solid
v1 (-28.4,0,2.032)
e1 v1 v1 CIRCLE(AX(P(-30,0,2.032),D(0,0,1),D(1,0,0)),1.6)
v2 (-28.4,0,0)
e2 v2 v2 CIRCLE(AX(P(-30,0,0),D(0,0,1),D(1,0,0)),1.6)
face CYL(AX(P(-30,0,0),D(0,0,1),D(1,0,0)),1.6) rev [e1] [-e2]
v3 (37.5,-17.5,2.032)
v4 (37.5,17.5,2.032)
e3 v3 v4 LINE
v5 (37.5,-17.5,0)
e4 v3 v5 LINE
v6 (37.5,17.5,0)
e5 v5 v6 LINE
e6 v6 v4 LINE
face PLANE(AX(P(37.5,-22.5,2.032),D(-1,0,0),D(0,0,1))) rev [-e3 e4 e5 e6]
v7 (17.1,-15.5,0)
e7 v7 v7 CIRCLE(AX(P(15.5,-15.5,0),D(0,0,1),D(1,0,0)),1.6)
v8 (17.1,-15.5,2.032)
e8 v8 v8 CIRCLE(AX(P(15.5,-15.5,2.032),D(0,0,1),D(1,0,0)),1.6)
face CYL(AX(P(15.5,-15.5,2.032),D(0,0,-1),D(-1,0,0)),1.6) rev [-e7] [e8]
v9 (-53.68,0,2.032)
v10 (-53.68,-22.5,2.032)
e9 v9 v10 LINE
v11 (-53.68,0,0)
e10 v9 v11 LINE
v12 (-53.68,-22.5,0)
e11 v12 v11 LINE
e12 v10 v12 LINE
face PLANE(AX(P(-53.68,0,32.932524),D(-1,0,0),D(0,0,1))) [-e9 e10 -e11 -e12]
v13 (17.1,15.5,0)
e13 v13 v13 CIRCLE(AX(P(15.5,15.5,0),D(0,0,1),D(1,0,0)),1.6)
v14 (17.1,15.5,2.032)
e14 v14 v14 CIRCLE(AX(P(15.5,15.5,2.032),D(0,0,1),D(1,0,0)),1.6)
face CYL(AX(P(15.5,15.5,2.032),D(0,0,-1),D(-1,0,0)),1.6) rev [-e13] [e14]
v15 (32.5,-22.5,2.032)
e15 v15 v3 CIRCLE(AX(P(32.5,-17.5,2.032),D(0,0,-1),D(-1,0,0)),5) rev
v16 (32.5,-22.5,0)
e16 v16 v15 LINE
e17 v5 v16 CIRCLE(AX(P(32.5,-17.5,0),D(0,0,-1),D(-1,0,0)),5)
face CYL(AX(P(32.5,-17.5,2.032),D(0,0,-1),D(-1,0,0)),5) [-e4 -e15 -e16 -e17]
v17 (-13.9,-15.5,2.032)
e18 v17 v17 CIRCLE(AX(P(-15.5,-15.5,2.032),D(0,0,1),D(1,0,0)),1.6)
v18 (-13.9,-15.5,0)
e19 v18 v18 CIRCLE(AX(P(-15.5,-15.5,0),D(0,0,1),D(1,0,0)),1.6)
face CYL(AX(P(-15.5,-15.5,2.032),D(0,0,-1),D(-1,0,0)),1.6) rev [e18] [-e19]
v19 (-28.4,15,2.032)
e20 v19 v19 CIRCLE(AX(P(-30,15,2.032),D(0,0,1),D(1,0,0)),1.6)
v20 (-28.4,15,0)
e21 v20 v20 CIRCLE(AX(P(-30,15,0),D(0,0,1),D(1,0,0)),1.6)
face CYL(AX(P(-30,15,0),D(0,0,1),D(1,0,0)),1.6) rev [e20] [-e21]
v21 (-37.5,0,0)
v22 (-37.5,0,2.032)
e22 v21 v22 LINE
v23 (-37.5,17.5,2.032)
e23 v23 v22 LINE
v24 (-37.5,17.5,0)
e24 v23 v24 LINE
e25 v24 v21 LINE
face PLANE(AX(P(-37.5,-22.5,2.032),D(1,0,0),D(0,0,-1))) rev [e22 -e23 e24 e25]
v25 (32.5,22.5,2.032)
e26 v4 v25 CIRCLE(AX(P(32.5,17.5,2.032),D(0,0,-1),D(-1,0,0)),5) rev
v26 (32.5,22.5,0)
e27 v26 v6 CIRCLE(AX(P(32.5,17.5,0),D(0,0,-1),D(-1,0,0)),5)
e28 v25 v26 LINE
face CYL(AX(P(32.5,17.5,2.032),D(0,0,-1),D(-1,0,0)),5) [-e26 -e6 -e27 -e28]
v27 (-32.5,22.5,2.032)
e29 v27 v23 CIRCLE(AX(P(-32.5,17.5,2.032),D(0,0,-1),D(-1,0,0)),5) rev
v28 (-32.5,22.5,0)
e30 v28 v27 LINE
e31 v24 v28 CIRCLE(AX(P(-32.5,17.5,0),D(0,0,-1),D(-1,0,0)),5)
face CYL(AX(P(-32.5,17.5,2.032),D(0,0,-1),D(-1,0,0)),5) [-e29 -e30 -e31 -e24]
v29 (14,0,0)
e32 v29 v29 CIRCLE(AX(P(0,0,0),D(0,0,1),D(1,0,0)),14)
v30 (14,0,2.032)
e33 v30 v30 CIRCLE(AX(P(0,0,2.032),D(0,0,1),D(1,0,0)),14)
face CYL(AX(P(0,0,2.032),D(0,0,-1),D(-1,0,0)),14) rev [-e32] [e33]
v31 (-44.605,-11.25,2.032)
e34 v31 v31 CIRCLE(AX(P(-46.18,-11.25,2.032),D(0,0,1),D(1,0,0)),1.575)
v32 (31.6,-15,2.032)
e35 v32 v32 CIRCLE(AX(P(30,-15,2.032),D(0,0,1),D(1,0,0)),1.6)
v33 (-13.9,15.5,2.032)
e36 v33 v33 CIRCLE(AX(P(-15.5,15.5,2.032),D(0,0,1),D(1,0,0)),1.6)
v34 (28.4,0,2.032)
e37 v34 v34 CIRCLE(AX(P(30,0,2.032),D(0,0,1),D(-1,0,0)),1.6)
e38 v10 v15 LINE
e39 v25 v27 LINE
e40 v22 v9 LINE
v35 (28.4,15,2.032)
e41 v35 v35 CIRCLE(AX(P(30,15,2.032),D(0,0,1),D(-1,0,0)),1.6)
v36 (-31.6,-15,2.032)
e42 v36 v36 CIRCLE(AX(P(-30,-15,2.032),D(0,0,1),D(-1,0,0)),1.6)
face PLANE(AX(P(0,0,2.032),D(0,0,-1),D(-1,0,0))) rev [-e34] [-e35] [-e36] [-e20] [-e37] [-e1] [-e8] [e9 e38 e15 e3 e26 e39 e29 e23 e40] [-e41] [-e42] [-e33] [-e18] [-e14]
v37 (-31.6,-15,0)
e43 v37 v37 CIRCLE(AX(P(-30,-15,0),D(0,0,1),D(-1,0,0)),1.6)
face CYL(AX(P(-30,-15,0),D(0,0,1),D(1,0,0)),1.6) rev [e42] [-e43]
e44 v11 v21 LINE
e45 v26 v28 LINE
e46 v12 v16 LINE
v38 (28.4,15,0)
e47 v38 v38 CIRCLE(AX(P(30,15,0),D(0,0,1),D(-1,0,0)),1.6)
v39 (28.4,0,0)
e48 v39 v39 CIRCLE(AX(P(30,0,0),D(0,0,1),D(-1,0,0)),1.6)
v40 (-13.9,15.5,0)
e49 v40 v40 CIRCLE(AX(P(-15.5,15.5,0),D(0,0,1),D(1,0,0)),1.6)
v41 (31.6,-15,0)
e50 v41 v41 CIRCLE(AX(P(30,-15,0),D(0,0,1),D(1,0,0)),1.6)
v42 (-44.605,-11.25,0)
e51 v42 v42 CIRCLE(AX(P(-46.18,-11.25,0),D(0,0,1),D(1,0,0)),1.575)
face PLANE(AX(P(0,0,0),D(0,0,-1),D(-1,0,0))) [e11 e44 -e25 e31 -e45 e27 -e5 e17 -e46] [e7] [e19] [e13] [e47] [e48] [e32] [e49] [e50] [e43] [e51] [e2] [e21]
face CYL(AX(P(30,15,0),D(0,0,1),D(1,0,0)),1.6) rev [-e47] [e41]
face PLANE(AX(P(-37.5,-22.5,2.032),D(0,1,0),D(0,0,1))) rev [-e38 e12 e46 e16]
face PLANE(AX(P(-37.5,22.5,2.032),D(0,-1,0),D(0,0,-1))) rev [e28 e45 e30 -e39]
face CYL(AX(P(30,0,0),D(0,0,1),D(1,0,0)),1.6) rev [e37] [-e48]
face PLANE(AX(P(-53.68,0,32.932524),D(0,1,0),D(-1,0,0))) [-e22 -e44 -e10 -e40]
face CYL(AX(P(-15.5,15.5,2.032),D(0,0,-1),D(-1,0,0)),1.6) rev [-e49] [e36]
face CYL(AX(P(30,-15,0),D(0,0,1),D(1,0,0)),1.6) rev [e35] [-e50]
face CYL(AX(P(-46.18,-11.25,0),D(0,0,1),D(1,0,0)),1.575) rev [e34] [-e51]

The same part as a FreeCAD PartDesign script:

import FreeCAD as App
import Part
import Sketcher


def edges_at(feature, points):
    """Names of the edges that pass closest to the given points."""
    edges = feature.Shape.Edges
    near = lambda p: min(range(len(edges)), key=lambda i: edges[i].distToShape(Part.Vertex(*p))[0])
    return sorted({f"Edge{near(p) + 1}" for p in points})


def add_polygon(sketch, points):
    """Adds a closed chain of lines whose ends are joined by coincident constraints."""
    first, n = sketch.GeometryCount, len(points)
    for a, b in zip(points, points[1:] + points[:1]):
        sketch.addGeometry(Part.LineSegment(App.Vector(*a, 0), App.Vector(*b, 0)), False)
    for i in range(n):
        sketch.addConstraint(Sketcher.Constraint("Coincident", first + i, 2, first + (i + 1) % n, 1))

doc = App.newDocument("Part")
body = doc.addObject("PartDesign::Body", "Body")

sketch1 = body.newObject("Sketcher::SketchObject", "Sketch")
sketch1.AttachmentSupport = (doc.getObject("XY_Plane"), [""])
sketch1.MapMode = "FlatFace"
add_polygon(sketch1, [(-37.5, 22.5), (-37.5, -22.5), (37.5, -22.5), (37.5, 22.5)])
sketch1.addGeometry(Part.Circle(App.Vector(-15.5, -15.5, 0), App.Vector(0, 0, 1), 1.6), False)
sketch1.addGeometry(Part.Circle(App.Vector(15.5, -15.5, 0), App.Vector(0, 0, 1), 1.6), False)
sketch1.addGeometry(Part.Circle(App.Vector(-15.5, 15.5, 0), App.Vector(0, 0, 1), 1.6), False)
sketch1.addGeometry(Part.Circle(App.Vector(0, 0, 0), App.Vector(0, 0, 1), 14), False)
sketch1.addGeometry(Part.Circle(App.Vector(15.5, 15.5, 0), App.Vector(0, 0, 1), 1.6), False)
sketch1.addConstraint([
    Sketcher.Constraint("Vertical", 0),
    Sketcher.Constraint("Horizontal", 1),
    Sketcher.Constraint("Vertical", 2),
    Sketcher.Constraint("Horizontal", 3),
    Sketcher.Constraint("Coincident", 7, 3, -1, 1),
    Sketcher.Constraint("Equal", 4, 5),
    Sketcher.Constraint("Equal", 5, 6),
    Sketcher.Constraint("Equal", 6, 8),
    Sketcher.Constraint("Symmetric", 5, 3, 6, 3, -1, 1),
    Sketcher.Constraint("Symmetric", 4, 3, 8, 3, -1, 1),
    Sketcher.Constraint("Symmetric", 0, 2, 2, 2, -1, 1),
    Sketcher.Constraint("Symmetric", 4, 3, 5, 3, -2),
    Sketcher.Constraint("Diameter", 7, 28.0),
    Sketcher.Constraint("Diameter", 4, 3.2),
    Sketcher.Constraint("DistanceX", 1, 1, 1, 2, 75.0),
    Sketcher.Constraint("DistanceY", 0, 2, 0, 1, 45.0),
    Sketcher.Constraint("DistanceX", 4, 3, 5, 3, 31.0),
    Sketcher.Constraint("DistanceY", 4, 3, 6, 3, 31.0),
])
pad1 = body.newObject("PartDesign::Pad", "Pad")
pad1.Profile = sketch1
pad1.Length = 2.032
doc.recompute()

fillet = body.newObject("PartDesign::Fillet", "Fillet")
fillet.Base = (pad1, edges_at(pad1, [
    (37.5, -22.5, 1.016),
    (-37.5, -22.5, 1.016),
    (-37.5, 22.5, 1.016),
    (37.5, 22.5, 1.016),
]))
fillet.Radius = 5

sketch2 = body.newObject("Sketcher::SketchObject", "Sketch001")
sketch2.AttachmentSupport = (doc.getObject("XY_Plane"), [""])
sketch2.MapMode = "FlatFace"
sketch2.AttachmentOffset = App.Placement(App.Vector(0, 0, 2.032), App.Rotation())
sketch2.addGeometry([
    Part.Circle(App.Vector(-30, 0, 0), App.Vector(0, 0, 1), 1.6),
    Part.Circle(App.Vector(-30, 15, 0), App.Vector(0, 0, 1), 1.6),
    Part.Circle(App.Vector(-30, -15, 0), App.Vector(0, 0, 1), 1.6),
    Part.Circle(App.Vector(30, -15, 0), App.Vector(0, 0, 1), 1.6),
    Part.Circle(App.Vector(30, 15, 0), App.Vector(0, 0, 1), 1.6),
    Part.Circle(App.Vector(30, 0, 0), App.Vector(0, 0, 1), 1.6),
], False)
sketch2.addConstraint([
    Sketcher.Constraint("Equal", 0, 1),
    Sketcher.Constraint("Equal", 1, 2),
    Sketcher.Constraint("Equal", 2, 3),
    Sketcher.Constraint("Equal", 3, 4),
    Sketcher.Constraint("Equal", 4, 5),
    Sketcher.Constraint("Symmetric", 1, 3, 3, 3, -1, 1),
    Sketcher.Constraint("Symmetric", 2, 3, 4, 3, -1, 1),
    Sketcher.Constraint("Symmetric", 0, 3, 5, 3, -1, 1),
    Sketcher.Constraint("Symmetric", 2, 3, 3, 3, -2),
    Sketcher.Constraint("PointOnObject", 0, 3, -1),
    Sketcher.Constraint("Vertical", 0, 3, 1, 3),
    Sketcher.Constraint("Diameter", 0, 3.2),
    Sketcher.Constraint("DistanceX", 0, 3, -1, 1, 30.0),
    Sketcher.Constraint("DistanceY", -1, 1, 1, 3, 15.0),
])
pocket1 = body.newObject("PartDesign::Pocket", "Pocket")
pocket1.Profile = sketch2
pocket1.Type = "ThroughAll"

sketch3 = body.newObject("Sketcher::SketchObject", "Sketch002")
sketch3.AttachmentSupport = (doc.getObject("XY_Plane"), [""])
sketch3.MapMode = "FlatFace"
add_polygon(sketch3, [(-32.5, 0), (-32.5, -22.5), (-53.68, -22.5), (-53.68, 0)])
sketch3.addConstraint([
    Sketcher.Constraint("Vertical", 0),
    Sketcher.Constraint("Horizontal", 1),
    Sketcher.Constraint("Vertical", 2),
    Sketcher.Constraint("Horizontal", 3),
    Sketcher.Constraint("PointOnObject", 2, 2, -1),
    Sketcher.Constraint("DistanceY", 0, 2, 0, 1, 22.5),
    Sketcher.Constraint("DistanceX", 1, 2, 1, 1, 21.18),
    Sketcher.Constraint("DistanceX", 0, 2, -1, 1, 32.5),
])
pad2 = body.newObject("PartDesign::Pad", "Pad001")
pad2.Profile = sketch3
pad2.Length = 2.032

sketch4 = body.newObject("Sketcher::SketchObject", "Sketch003")
sketch4.AttachmentSupport = (doc.getObject("XY_Plane"), [""])
sketch4.MapMode = "FlatFace"
sketch4.AttachmentOffset = App.Placement(App.Vector(0, 0, 2.032), App.Rotation())
sketch4.addGeometry(Part.Circle(App.Vector(-46.18, -11.25, 0), App.Vector(0, 0, 1), 1.575), False)
sketch4.addConstraint([
    Sketcher.Constraint("Diameter", 0, 3.15),
    Sketcher.Constraint("DistanceX", 0, 3, -1, 1, 46.18),
    Sketcher.Constraint("DistanceY", 0, 3, -1, 1, 11.25),
])
pocket2 = body.newObject("PartDesign::Pocket", "Pocket001")
pocket2.Profile = sketch4
pocket2.Type = "ThroughAll"

doc.recompute()
